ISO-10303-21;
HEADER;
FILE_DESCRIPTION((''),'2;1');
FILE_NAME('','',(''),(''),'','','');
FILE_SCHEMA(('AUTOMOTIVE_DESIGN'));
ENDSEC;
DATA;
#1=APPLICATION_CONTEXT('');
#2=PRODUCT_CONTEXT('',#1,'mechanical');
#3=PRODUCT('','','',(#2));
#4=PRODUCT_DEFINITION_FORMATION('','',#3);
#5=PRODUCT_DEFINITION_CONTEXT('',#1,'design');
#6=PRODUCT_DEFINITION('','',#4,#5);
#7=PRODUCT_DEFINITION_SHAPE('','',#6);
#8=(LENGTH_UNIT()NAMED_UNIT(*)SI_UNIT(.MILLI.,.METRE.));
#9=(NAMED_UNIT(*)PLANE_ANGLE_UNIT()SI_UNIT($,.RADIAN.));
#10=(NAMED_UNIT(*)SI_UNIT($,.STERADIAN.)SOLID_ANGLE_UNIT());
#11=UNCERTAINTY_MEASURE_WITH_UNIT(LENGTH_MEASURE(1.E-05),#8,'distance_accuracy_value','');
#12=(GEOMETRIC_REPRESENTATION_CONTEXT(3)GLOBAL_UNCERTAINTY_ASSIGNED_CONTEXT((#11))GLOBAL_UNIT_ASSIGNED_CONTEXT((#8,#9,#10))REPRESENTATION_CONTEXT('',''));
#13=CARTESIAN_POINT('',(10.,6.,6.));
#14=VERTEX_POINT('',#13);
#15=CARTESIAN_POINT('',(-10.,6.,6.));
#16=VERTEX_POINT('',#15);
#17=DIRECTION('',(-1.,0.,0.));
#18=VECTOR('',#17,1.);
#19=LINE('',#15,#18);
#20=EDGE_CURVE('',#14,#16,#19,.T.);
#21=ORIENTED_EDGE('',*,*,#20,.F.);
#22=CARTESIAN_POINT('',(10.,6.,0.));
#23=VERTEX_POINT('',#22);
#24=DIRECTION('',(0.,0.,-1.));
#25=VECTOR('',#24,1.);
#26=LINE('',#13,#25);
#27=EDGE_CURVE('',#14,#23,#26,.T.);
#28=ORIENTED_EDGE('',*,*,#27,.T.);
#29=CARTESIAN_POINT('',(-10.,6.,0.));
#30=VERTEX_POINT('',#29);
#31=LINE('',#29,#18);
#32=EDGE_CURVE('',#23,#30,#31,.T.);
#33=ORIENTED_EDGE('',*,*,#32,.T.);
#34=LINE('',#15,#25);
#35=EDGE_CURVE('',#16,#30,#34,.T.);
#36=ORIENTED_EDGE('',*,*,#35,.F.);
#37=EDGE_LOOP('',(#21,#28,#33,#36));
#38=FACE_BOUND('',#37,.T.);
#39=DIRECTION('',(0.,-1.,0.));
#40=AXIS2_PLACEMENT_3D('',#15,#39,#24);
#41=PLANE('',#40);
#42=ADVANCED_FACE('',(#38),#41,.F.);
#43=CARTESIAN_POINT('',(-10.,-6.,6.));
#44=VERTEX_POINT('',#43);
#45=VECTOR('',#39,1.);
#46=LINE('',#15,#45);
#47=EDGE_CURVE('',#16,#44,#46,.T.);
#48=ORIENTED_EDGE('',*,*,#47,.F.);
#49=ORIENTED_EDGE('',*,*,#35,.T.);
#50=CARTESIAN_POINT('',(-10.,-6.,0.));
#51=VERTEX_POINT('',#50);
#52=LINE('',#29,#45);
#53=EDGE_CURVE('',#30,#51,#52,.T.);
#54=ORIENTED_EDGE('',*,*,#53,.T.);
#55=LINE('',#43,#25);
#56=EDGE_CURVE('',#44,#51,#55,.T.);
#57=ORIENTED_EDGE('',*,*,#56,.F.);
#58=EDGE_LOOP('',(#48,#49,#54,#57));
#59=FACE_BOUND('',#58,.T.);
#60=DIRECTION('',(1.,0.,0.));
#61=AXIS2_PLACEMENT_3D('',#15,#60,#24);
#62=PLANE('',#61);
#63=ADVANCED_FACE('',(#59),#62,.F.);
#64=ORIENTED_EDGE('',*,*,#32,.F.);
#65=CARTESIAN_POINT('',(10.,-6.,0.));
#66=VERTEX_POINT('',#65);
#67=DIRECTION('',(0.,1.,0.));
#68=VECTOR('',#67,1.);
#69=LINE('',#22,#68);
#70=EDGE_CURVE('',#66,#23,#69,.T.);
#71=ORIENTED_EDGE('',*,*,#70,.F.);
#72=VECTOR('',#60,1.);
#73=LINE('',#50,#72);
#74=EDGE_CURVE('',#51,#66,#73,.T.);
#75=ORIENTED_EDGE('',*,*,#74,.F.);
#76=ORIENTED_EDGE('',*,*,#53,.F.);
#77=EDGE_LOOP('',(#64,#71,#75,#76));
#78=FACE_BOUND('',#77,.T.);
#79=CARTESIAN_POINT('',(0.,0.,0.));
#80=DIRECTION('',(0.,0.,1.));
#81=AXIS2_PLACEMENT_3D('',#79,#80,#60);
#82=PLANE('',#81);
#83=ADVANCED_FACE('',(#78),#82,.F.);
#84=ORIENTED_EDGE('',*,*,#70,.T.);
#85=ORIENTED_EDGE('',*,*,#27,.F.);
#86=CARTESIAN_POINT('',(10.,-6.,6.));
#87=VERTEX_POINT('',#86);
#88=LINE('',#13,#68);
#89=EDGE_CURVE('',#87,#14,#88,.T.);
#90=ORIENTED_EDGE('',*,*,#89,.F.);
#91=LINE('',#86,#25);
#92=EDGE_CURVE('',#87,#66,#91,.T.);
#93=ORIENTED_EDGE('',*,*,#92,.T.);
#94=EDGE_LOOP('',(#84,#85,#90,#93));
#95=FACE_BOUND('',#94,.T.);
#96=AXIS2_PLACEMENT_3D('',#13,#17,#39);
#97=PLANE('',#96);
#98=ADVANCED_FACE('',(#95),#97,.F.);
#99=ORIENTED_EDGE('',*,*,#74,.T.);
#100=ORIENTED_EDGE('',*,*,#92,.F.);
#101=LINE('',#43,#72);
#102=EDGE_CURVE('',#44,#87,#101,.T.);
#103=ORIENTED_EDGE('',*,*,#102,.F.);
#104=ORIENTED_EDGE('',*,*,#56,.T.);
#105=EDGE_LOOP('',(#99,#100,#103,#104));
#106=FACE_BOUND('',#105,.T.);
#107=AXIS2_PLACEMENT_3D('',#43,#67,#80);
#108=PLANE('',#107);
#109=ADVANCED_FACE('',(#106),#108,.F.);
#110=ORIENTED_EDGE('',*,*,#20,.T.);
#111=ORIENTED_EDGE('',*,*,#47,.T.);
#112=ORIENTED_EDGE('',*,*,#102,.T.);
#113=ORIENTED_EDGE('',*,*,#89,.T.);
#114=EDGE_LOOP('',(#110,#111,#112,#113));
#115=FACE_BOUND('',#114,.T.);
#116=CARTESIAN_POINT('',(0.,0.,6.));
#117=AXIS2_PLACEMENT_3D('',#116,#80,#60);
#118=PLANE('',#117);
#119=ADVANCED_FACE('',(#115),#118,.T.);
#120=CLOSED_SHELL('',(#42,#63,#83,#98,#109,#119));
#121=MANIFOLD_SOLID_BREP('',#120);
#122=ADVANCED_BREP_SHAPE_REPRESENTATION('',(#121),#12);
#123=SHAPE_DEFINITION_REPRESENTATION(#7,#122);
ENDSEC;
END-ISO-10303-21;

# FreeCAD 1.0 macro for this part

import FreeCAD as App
import Part
import Sketcher


def add_polygon(sketch, points):
    """Adds a closed chain of lines whose ends are joined by coincident constraints."""
    first, n = sketch.GeometryCount, len(points)
    for a, b in zip(points, points[1:] + points[:1]):
        sketch.addGeometry(Part.LineSegment(App.Vector(*a, 0), App.Vector(*b, 0)), False)
    for i in range(n):
        sketch.addConstraint(Sketcher.Constraint("Coincident", first + i, 2, first + (i + 1) % n, 1))

doc = App.newDocument("Part")
body = doc.addObject("PartDesign::Body", "Body")

sketch1 = doc.addObject("Sketcher::SketchObject", "Sketch")
body.addObject(sketch1)
sketch1.AttachmentSupport = (doc.XY_Plane, [""])
sketch1.MapMode = "FlatFace"
add_polygon(sketch1, [(-10, 6), (-10, -6), (10, -6), (10, 6)])
sketch1.addConstraint(Sketcher.Constraint("Vertical", 0))
sketch1.addConstraint(Sketcher.Constraint("Horizontal", 1))
sketch1.addConstraint(Sketcher.Constraint("Vertical", 2))
sketch1.addConstraint(Sketcher.Constraint("Horizontal", 3))
sketch1.addConstraint(Sketcher.Constraint("Symmetric", 0, 2, 2, 2, -1, 1))
sketch1.addConstraint(Sketcher.Constraint("DistanceX", 1, 1, 1, 2, 20.0))
sketch1.addConstraint(Sketcher.Constraint("DistanceY", 0, 2, 0, 1, 12.0))
pad1 = doc.addObject("PartDesign::Pad", "Pad")
body.addObject(pad1)
pad1.Profile = sketch1
pad1.Length = 6

doc.recompute()
